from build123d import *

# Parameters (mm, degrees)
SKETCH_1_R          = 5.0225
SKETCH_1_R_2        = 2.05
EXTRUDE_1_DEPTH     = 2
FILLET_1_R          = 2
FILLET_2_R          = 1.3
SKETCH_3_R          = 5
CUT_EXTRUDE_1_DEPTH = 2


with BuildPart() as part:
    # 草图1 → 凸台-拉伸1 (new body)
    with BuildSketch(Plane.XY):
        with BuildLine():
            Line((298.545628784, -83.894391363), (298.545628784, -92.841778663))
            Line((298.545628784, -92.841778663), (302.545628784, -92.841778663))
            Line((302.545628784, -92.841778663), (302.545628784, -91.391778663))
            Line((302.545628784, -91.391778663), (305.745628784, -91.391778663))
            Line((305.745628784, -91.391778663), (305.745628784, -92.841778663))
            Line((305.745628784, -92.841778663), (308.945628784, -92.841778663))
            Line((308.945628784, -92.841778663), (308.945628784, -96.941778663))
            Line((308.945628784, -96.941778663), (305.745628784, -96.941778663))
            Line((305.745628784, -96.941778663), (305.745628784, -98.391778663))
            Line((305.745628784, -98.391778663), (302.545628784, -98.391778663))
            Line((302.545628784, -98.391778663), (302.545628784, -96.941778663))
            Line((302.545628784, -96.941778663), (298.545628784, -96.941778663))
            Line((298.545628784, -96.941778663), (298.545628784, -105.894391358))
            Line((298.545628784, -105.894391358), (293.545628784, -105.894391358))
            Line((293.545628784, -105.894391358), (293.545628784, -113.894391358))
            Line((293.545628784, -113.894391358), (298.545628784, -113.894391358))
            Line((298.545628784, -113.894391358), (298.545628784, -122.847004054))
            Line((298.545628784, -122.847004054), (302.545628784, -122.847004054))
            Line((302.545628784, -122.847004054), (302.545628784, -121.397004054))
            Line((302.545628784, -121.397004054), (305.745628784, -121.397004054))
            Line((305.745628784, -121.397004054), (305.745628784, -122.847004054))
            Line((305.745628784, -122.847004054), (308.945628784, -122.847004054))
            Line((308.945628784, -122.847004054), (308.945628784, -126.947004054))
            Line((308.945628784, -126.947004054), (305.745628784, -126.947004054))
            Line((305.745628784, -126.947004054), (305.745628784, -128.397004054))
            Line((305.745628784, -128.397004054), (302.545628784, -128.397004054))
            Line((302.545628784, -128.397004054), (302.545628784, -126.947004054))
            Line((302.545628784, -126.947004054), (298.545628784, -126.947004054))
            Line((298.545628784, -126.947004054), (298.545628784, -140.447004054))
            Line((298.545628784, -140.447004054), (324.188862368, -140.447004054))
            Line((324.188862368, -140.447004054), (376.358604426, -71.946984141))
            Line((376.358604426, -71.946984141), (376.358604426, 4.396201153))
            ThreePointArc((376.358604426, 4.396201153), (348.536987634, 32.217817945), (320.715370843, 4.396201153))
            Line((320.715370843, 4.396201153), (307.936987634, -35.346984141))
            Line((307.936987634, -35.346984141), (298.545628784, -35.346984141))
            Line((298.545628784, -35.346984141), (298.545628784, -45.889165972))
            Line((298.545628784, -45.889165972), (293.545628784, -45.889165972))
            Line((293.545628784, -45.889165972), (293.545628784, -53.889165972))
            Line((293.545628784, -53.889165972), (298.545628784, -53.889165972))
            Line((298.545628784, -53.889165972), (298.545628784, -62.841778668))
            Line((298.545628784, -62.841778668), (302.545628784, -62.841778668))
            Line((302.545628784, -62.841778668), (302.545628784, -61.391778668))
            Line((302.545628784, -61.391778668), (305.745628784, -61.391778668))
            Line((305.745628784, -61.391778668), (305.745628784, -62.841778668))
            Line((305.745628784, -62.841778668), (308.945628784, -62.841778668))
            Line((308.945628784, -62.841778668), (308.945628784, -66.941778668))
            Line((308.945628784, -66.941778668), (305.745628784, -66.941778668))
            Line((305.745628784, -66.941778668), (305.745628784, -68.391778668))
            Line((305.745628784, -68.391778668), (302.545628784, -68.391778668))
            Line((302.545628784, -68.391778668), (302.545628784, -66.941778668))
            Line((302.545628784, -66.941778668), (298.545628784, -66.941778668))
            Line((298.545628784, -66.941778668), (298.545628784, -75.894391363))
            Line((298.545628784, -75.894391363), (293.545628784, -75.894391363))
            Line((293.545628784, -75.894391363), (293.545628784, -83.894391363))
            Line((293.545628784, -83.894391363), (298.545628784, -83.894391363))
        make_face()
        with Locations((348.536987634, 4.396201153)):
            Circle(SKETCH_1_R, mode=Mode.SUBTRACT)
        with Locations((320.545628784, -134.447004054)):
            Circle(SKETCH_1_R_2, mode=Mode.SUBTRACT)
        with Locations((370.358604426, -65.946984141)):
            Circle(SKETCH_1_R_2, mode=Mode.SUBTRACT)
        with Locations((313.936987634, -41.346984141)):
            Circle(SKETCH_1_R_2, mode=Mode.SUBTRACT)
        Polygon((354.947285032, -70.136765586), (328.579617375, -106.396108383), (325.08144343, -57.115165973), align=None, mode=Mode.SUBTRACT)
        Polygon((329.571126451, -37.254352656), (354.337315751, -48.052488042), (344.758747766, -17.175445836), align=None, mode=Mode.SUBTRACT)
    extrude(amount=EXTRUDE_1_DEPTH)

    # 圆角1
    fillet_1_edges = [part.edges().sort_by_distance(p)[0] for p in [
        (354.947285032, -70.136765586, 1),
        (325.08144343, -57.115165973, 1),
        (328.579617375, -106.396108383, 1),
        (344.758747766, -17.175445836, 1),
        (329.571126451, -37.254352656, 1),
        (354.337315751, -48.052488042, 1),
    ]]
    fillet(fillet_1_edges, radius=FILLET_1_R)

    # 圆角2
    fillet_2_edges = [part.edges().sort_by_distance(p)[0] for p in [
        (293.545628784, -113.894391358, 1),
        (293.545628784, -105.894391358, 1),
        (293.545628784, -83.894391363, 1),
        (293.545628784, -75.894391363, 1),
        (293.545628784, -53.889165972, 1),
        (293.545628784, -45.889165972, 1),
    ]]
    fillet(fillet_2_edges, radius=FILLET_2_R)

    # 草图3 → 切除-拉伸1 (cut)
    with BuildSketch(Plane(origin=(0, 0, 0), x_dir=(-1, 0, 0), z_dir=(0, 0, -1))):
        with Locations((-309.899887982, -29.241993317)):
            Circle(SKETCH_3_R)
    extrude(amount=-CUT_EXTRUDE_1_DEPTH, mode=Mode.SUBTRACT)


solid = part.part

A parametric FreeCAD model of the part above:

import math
import FreeCAD as App
import Part
import Sketcher

V = App.Vector


def edges_at(feature, points):
    """Names of the edges that pass closest to the given points."""
    edges = feature.Shape.Edges
    near = lambda p: min(range(len(edges)), key=lambda i: edges[i].distToShape(Part.Vertex(*p))[0])
    return sorted({f"Edge{near(p) + 1}" for p in points})

doc = App.newDocument("Part")
body = doc.addObject("PartDesign::Body", "Body")

sketch1 = body.newObject("Sketcher::SketchObject", "Sketch")
sketch1.AttachmentSupport = (doc.getObject("XY_Plane"), [""])
sketch1.MapMode = "FlatFace"
sketch1.addGeometry([
    Part.LineSegment(V(298.545629, -83.894391, 0), V(298.545629, -92.841779, 0)),
    Part.LineSegment(V(298.545629, -92.841779, 0), V(302.545629, -92.841779, 0)),
    Part.LineSegment(V(302.545629, -92.841779, 0), V(302.545629, -91.391779, 0)),
    Part.LineSegment(V(302.545629, -91.391779, 0), V(305.745629, -91.391779, 0)),
    Part.LineSegment(V(305.745629, -91.391779, 0), V(305.745629, -92.841779, 0)),
    Part.LineSegment(V(305.745629, -92.841779, 0), V(308.945629, -92.841779, 0)),
    Part.LineSegment(V(308.945629, -92.841779, 0), V(308.945629, -96.941779, 0)),
    Part.LineSegment(V(308.945629, -96.941779, 0), V(305.745629, -96.941779, 0)),
    Part.LineSegment(V(305.745629, -96.941779, 0), V(305.745629, -98.391779, 0)),
    Part.LineSegment(V(305.745629, -98.391779, 0), V(302.545629, -98.391779, 0)),
    Part.LineSegment(V(302.545629, -98.391779, 0), V(302.545629, -96.941779, 0)),
    Part.LineSegment(V(302.545629, -96.941779, 0), V(298.545629, -96.941779, 0)),
    Part.LineSegment(V(298.545629, -96.941779, 0), V(298.545629, -105.894391, 0)),
    Part.LineSegment(V(298.545629, -105.894391, 0), V(293.545629, -105.894391, 0)),
    Part.LineSegment(V(293.545629, -105.894391, 0), V(293.545629, -113.894391, 0)),
    Part.LineSegment(V(293.545629, -113.894391, 0), V(298.545629, -113.894391, 0)),
    Part.LineSegment(V(298.545629, -113.894391, 0), V(298.545629, -122.847004, 0)),
    Part.LineSegment(V(298.545629, -122.847004, 0), V(302.545629, -122.847004, 0)),
    Part.LineSegment(V(302.545629, -122.847004, 0), V(302.545629, -121.397004, 0)),
    Part.LineSegment(V(302.545629, -121.397004, 0), V(305.745629, -121.397004, 0)),
    Part.LineSegment(V(305.745629, -121.397004, 0), V(305.745629, -122.847004, 0)),
    Part.LineSegment(V(305.745629, -122.847004, 0), V(308.945629, -122.847004, 0)),
    Part.LineSegment(V(308.945629, -122.847004, 0), V(308.945629, -126.947004, 0)),
    Part.LineSegment(V(308.945629, -126.947004, 0), V(305.745629, -126.947004, 0)),
    Part.LineSegment(V(305.745629, -126.947004, 0), V(305.745629, -128.397004, 0)),
    Part.LineSegment(V(305.745629, -128.397004, 0), V(302.545629, -128.397004, 0)),
    Part.LineSegment(V(302.545629, -128.397004, 0), V(302.545629, -126.947004, 0)),
    Part.LineSegment(V(302.545629, -126.947004, 0), V(298.545629, -126.947004, 0)),
    Part.LineSegment(V(298.545629, -126.947004, 0), V(298.545629, -140.447004, 0)),
    Part.LineSegment(V(298.545629, -140.447004, 0), V(324.188862, -140.447004, 0)),
    Part.LineSegment(V(324.188862, -140.447004, 0), V(376.358604, -71.946984, 0)),
    Part.LineSegment(V(376.358604, -71.946984, 0), V(376.358604, 4.396201, 0)),
    Part.ArcOfCircle(Part.Circle(V(348.536988, 4.396201, 0), V(0, 0, 1), 27.821617), math.radians(0), math.radians(180)),
    Part.LineSegment(V(320.715371, 4.396201, 0), V(307.936988, -35.346984, 0)),
    Part.LineSegment(V(307.936988, -35.346984, 0), V(298.545629, -35.346984, 0)),
    Part.LineSegment(V(298.545629, -35.346984, 0), V(298.545629, -45.889166, 0)),
    Part.LineSegment(V(298.545629, -45.889166, 0), V(293.545629, -45.889166, 0)),
    Part.LineSegment(V(293.545629, -45.889166, 0), V(293.545629, -53.889166, 0)),
    Part.LineSegment(V(293.545629, -53.889166, 0), V(298.545629, -53.889166, 0)),
    Part.LineSegment(V(298.545629, -53.889166, 0), V(298.545629, -62.841779, 0)),
    Part.LineSegment(V(298.545629, -62.841779, 0), V(302.545629, -62.841779, 0)),
    Part.LineSegment(V(302.545629, -62.841779, 0), V(302.545629, -61.391779, 0)),
    Part.LineSegment(V(302.545629, -61.391779, 0), V(305.745629, -61.391779, 0)),
    Part.LineSegment(V(305.745629, -61.391779, 0), V(305.745629, -62.841779, 0)),
    Part.LineSegment(V(305.745629, -62.841779, 0), V(308.945629, -62.841779, 0)),
    Part.LineSegment(V(308.945629, -62.841779, 0), V(308.945629, -66.941779, 0)),
    Part.LineSegment(V(308.945629, -66.941779, 0), V(305.745629, -66.941779, 0)),
    Part.LineSegment(V(305.745629, -66.941779, 0), V(305.745629, -68.391779, 0)),
    Part.LineSegment(V(305.745629, -68.391779, 0), V(302.545629, -68.391779, 0)),
    Part.LineSegment(V(302.545629, -68.391779, 0), V(302.545629, -66.941779, 0)),
    Part.LineSegment(V(302.545629, -66.941779, 0), V(298.545629, -66.941779, 0)),
    Part.LineSegment(V(298.545629, -66.941779, 0), V(298.545629, -75.894391, 0)),
    Part.LineSegment(V(298.545629, -75.894391, 0), V(293.545629, -75.894391, 0)),
    Part.LineSegment(V(293.545629, -75.894391, 0), V(293.545629, -83.894391, 0)),
    Part.LineSegment(V(293.545629, -83.894391, 0), V(298.545629, -83.894391, 0)),
    Part.Circle(V(320.545629, -134.447004, 0), V(0, 0, 1), 2.05),
    Part.LineSegment(V(325.081443, -57.115166, 0), V(354.947285, -70.136766, 0)),
    Part.LineSegment(V(354.947285, -70.136766, 0), V(328.579617, -106.396108, 0)),
    Part.LineSegment(V(328.579617, -106.396108, 0), V(325.081443, -57.115166, 0)),
    Part.Circle(V(370.358604, -65.946984, 0), V(0, 0, 1), 2.05),
    Part.Circle(V(313.936988, -41.346984, 0), V(0, 0, 1), 2.05),
    Part.LineSegment(V(354.337316, -48.052488, 0), V(329.571126, -37.254353, 0)),
    Part.LineSegment(V(329.571126, -37.254353, 0), V(344.758748, -17.175446, 0)),
    Part.LineSegment(V(344.758748, -17.175446, 0), V(354.337316, -48.052488, 0)),
    Part.Circle(V(348.536988, 4.396201, 0), V(0, 0, 1), 5.0225),
], False)
sketch1.addConstraint([
    Sketcher.Constraint("Coincident", 0, 2, 1, 1),
    Sketcher.Constraint("Coincident", 1, 2, 2, 1),
    Sketcher.Constraint("Coincident", 2, 2, 3, 1),
    Sketcher.Constraint("Coincident", 3, 2, 4, 1),
    Sketcher.Constraint("Coincident", 4, 2, 5, 1),
    Sketcher.Constraint("Coincident", 5, 2, 6, 1),
    Sketcher.Constraint("Coincident", 6, 2, 7, 1),
    Sketcher.Constraint("Coincident", 7, 2, 8, 1),
    Sketcher.Constraint("Coincident", 8, 2, 9, 1),
    Sketcher.Constraint("Coincident", 9, 2, 10, 1),
    Sketcher.Constraint("Coincident", 10, 2, 11, 1),
    Sketcher.Constraint("Coincident", 11, 2, 12, 1),
    Sketcher.Constraint("Coincident", 12, 2, 13, 1),
    Sketcher.Constraint("Coincident", 13, 2, 14, 1),
    Sketcher.Constraint("Coincident", 14, 2, 15, 1),
    Sketcher.Constraint("Coincident", 15, 2, 16, 1),
    Sketcher.Constraint("Coincident", 16, 2, 17, 1),
    Sketcher.Constraint("Coincident", 17, 2, 18, 1),
    Sketcher.Constraint("Coincident", 18, 2, 19, 1),
    Sketcher.Constraint("Coincident", 19, 2, 20, 1),
    Sketcher.Constraint("Coincident", 20, 2, 21, 1),
    Sketcher.Constraint("Coincident", 21, 2, 22, 1),
    Sketcher.Constraint("Coincident", 22, 2, 23, 1),
    Sketcher.Constraint("Coincident", 23, 2, 24, 1),
    Sketcher.Constraint("Coincident", 24, 2, 25, 1),
    Sketcher.Constraint("Coincident", 25, 2, 26, 1),
    Sketcher.Constraint("Coincident", 26, 2, 27, 1),
    Sketcher.Constraint("Coincident", 27, 2, 28, 1),
    Sketcher.Constraint("Coincident", 28, 2, 29, 1),
    Sketcher.Constraint("Coincident", 29, 2, 30, 1),
    Sketcher.Constraint("Coincident", 30, 2, 31, 1),
    Sketcher.Constraint("Tangent", 31, 2, 32, 1),
    Sketcher.Constraint("Coincident", 32, 2, 33, 1),
    Sketcher.Constraint("Coincident", 33, 2, 34, 1),
    Sketcher.Constraint("Coincident", 34, 2, 35, 1),
    Sketcher.Constraint("Coincident", 35, 2, 36, 1),
    Sketcher.Constraint("Coincident", 36, 2, 37, 1),
    Sketcher.Constraint("Coincident", 37, 2, 38, 1),
    Sketcher.Constraint("Coincident", 38, 2, 39, 1),
    Sketcher.Constraint("Coincident", 39, 2, 40, 1),
    Sketcher.Constraint("Coincident", 40, 2, 41, 1),
    Sketcher.Constraint("Coincident", 41, 2, 42, 1),
    Sketcher.Constraint("Coincident", 42, 2, 43, 1),
    Sketcher.Constraint("Coincident", 43, 2, 44, 1),
    Sketcher.Constraint("Coincident", 44, 2, 45, 1),
    Sketcher.Constraint("Coincident", 45, 2, 46, 1),
    Sketcher.Constraint("Coincident", 46, 2, 47, 1),
    Sketcher.Constraint("Coincident", 47, 2, 48, 1),
    Sketcher.Constraint("Coincident", 48, 2, 49, 1),
    Sketcher.Constraint("Coincident", 49, 2, 50, 1),
    Sketcher.Constraint("Coincident", 50, 2, 51, 1),
    Sketcher.Constraint("Coincident", 51, 2, 52, 1),
    Sketcher.Constraint("Coincident", 52, 2, 53, 1),
    Sketcher.Constraint("Coincident", 53, 2, 54, 1),
    Sketcher.Constraint("Coincident", 54, 2, 0, 1),
    Sketcher.Constraint("Coincident", 56, 2, 57, 1),
    Sketcher.Constraint("Coincident", 57, 2, 58, 1),
    Sketcher.Constraint("Coincident", 58, 2, 56, 1),
    Sketcher.Constraint("Coincident", 61, 2, 62, 1),
    Sketcher.Constraint("Coincident", 62, 2, 63, 1),
    Sketcher.Constraint("Coincident", 63, 2, 61, 1),
    Sketcher.Constraint("Vertical", 0),
    Sketcher.Constraint("Horizontal", 1),
    Sketcher.Constraint("Vertical", 2),
    Sketcher.Constraint("Horizontal", 3),
    Sketcher.Constraint("Vertical", 4),
    Sketcher.Constraint("Horizontal", 5),
    Sketcher.Constraint("Vertical", 6),
    Sketcher.Constraint("Horizontal", 7),
    Sketcher.Constraint("Vertical", 8),
    Sketcher.Constraint("Horizontal", 9),
    Sketcher.Constraint("Vertical", 10),
    Sketcher.Constraint("Horizontal", 11),
    Sketcher.Constraint("Vertical", 12),
    Sketcher.Constraint("Horizontal", 13),
    Sketcher.Constraint("Vertical", 14),
    Sketcher.Constraint("Horizontal", 15),
    Sketcher.Constraint("Vertical", 16),
    Sketcher.Constraint("Horizontal", 17),
    Sketcher.Constraint("Vertical", 18),
    Sketcher.Constraint("Horizontal", 19),
    Sketcher.Constraint("Vertical", 20),
    Sketcher.Constraint("Horizontal", 21),
    Sketcher.Constraint("Vertical", 22),
    Sketcher.Constraint("Horizontal", 23),
    Sketcher.Constraint("Vertical", 24),
    Sketcher.Constraint("Horizontal", 25),
    Sketcher.Constraint("Vertical", 26),
    Sketcher.Constraint("Horizontal", 27),
    Sketcher.Constraint("Vertical", 28),
    Sketcher.Constraint("Horizontal", 29),
    Sketcher.Constraint("Vertical", 31),
    Sketcher.Constraint("Horizontal", 34),
    Sketcher.Constraint("Vertical", 35),
    Sketcher.Constraint("Horizontal", 36),
    Sketcher.Constraint("Vertical", 37),
    Sketcher.Constraint("Horizontal", 38),
    Sketcher.Constraint("Vertical", 39),
    Sketcher.Constraint("Horizontal", 40),
    Sketcher.Constraint("Vertical", 41),
    Sketcher.Constraint("Horizontal", 42),
    Sketcher.Constraint("Vertical", 43),
    Sketcher.Constraint("Horizontal", 44),
    Sketcher.Constraint("Vertical", 45),
    Sketcher.Constraint("Horizontal", 46),
    Sketcher.Constraint("Vertical", 47),
    Sketcher.Constraint("Horizontal", 48),
    Sketcher.Constraint("Vertical", 49),
    Sketcher.Constraint("Horizontal", 50),
    Sketcher.Constraint("Vertical", 51),
    Sketcher.Constraint("Horizontal", 52),
    Sketcher.Constraint("Vertical", 53),
    Sketcher.Constraint("Horizontal", 54),
    Sketcher.Constraint("Coincident", 64, 3, 32, 3),
    Sketcher.Constraint("Equal", 55, 59),
    Sketcher.Constraint("Equal", 59, 60),
    Sketcher.Constraint("Parallel", 56, 61),
    Sketcher.Constraint("Horizontal", 1, 2, 4, 2),
    Sketcher.Constraint("Horizontal", 7, 2, 10, 2),
    Sketcher.Constraint("Horizontal", 17, 2, 20, 2),
    Sketcher.Constraint("Horizontal", 23, 2, 26, 2),
    Sketcher.Constraint("Horizontal", 31, 2, 32, 2),
    Sketcher.Constraint("Horizontal", 40, 2, 43, 2),
    Sketcher.Constraint("Horizontal", 46, 2, 49, 2),
    Sketcher.Constraint("Vertical", 4, 2, 7, 2),
    Sketcher.Constraint("Vertical", 2, 2, 9, 2),
    Sketcher.Constraint("Vertical", 0, 2, 11, 2),
    Sketcher.Constraint("Vertical", 12, 2, 15, 2),
    Sketcher.Constraint("Vertical", 10, 2, 17, 2),
    Sketcher.Constraint("Vertical", 8, 2, 19, 2),
    Sketcher.Constraint("Vertical", 6, 2, 21, 2),
    Sketcher.Constraint("Vertical", 20, 2, 23, 2),
    Sketcher.Constraint("Vertical", 18, 2, 25, 2),
    Sketcher.Constraint("Vertical", 16, 2, 27, 2),
    Sketcher.Constraint("Vertical", 28, 2, 34, 2),
    Sketcher.Constraint("Vertical", 14, 2, 36, 2),
    Sketcher.Constraint("Vertical", 35, 2, 38, 2),
    Sketcher.Constraint("Vertical", 26, 2, 40, 2),
    Sketcher.Constraint("Vertical", 24, 2, 42, 2),
    Sketcher.Constraint("Vertical", 22, 2, 44, 2),
    Sketcher.Constraint("Vertical", 43, 2, 46, 2),
    Sketcher.Constraint("Vertical", 41, 2, 48, 2),
    Sketcher.Constraint("Vertical", 39, 2, 50, 2),
    Sketcher.Constraint("Vertical", 37, 2, 52, 2),
    Sketcher.Constraint("Equal", 3, 5),
    Sketcher.Constraint("Equal", 4, 8),
    Sketcher.Constraint("Equal", 12, 16),
    Sketcher.Constraint("Equal", 10, 18),
    Sketcher.Constraint("Equal", 6, 22),
    Sketcher.Constraint("Equal", 20, 24),
    Sketcher.Constraint("Equal", 14, 37),
    Sketcher.Constraint("Equal", 16, 39),
    Sketcher.Constraint("Equal", 26, 41),
    Sketcher.Constraint("Equal", 22, 45),
    Sketcher.Constraint("Equal", 43, 47),
    Sketcher.Constraint("Equal", 39, 51),
    Sketcher.Constraint("Equal", 37, 53),
    Sketcher.Constraint("Diameter", 55, 4.1),
    Sketcher.Constraint("DistanceX", 1, 1, 1, 2, 4.0),
    Sketcher.Constraint("DistanceX", 13, 2, 13, 1, 5.0),
    Sketcher.Constraint("DistanceY", 14, 2, 14, 1, 8.0),
    Sketcher.Constraint("Diameter", 64, 10.045),
    Sketcher.Constraint("DistanceX", 3, 1, 3, 2, 3.2),
    Sketcher.Constraint("DistanceY", 6, 2, 6, 1, 4.1),
    Sketcher.Constraint("DistanceY", 28, 2, 28, 1, 13.5),
    Sketcher.Constraint("DistanceY", 2, 1, 2, 2, 1.45),
    Sketcher.Constraint("Radius", 32, 27.821617),
    Sketcher.Constraint("DistanceX", 34, 2, 34, 1, 9.391359),
    Sketcher.Constraint("DistanceY", 35, 2, 35, 1, 10.542182),
    Sketcher.Constraint("DistanceY", -1, 1, 32, 3, 4.396201),
    Sketcher.Constraint("Distance", 30, 86.104208),
    Sketcher.Constraint("Distance", 33, 41.74695),
    Sketcher.Constraint("DistanceX", 29, 1, 29, 2, 25.643234),
    Sketcher.Constraint("DistanceY", 0, 2, 0, 1, 8.947387),
    Sketcher.Constraint("DistanceY", 12, 2, 12, 1, 8.952613),
    Sketcher.Constraint("DistanceY", 31, 1, 31, 2, 76.343185),
    Sketcher.Constraint("DistanceX", -1, 1, 55, 3, 320.545629),
    Sketcher.Constraint("DistanceX", -1, 1, 0, 2, 298.545629),
    Sketcher.Constraint("DistanceY", 57, 2, -1, 1, 106.396108),
    Sketcher.Constraint("DistanceY", 63, 2, -1, 1, 48.052488),
    Sketcher.Constraint("Distance", 56, 32.581138),
    Sketcher.Constraint("Distance", 57, 44.832955),
    Sketcher.Constraint("Distance", 58, 49.404944),
    Sketcher.Constraint("Distance", 61, 27.017843),
    Sketcher.Constraint("Distance", 62, 25.175908),
    Sketcher.Constraint("Distance", 63, 32.328636),
    Sketcher.Constraint("DistanceY", 55, 3, -1, 1, 134.447004),
    Sketcher.Constraint("DistanceX", -1, 1, 59, 3, 370.358604),
    Sketcher.Constraint("DistanceY", 59, 3, -1, 1, 65.946984),
    Sketcher.Constraint("DistanceX", -1, 1, 60, 3, 313.936988),
    Sketcher.Constraint("DistanceY", 60, 3, -1, 1, 41.346984),
    Sketcher.Constraint("DistanceX", -1, 1, 56, 2, 354.947285),
    Sketcher.Constraint("DistanceY", 56, 2, -1, 1, 70.136766),
    Sketcher.Constraint("DistanceX", -1, 1, 61, 2, 329.571126),
])
pad1 = body.newObject("PartDesign::Pad", "Pad")
pad1.Profile = sketch1
pad1.Length = 2
doc.recompute()

fillet = body.newObject("PartDesign::Fillet", "Fillet")
fillet.Base = (pad1, edges_at(pad1, [
    (354.947, -70.137, 1),
    (325.081, -57.115, 1),
    (328.58, -106.396, 1),
    (344.759, -17.175, 1),
    (329.571, -37.254, 1),
    (354.337, -48.052, 1),
]))
fillet.Radius = 2
doc.recompute()

fillet2 = body.newObject("PartDesign::Fillet", "Fillet001")
fillet2.Base = (fillet, edges_at(fillet, [
    (293.546, -113.894, 1),
    (293.546, -105.894, 1),
    (293.546, -83.894, 1),
    (293.546, -75.894, 1),
    (293.546, -53.889, 1),
    (293.546, -45.889, 1),
]))
fillet2.Radius = 1.3

sketch2 = body.newObject("Sketcher::SketchObject", "Sketch001")
sketch2.AttachmentSupport = (doc.getObject("XY_Plane"), [""])
sketch2.MapMode = "FlatFace"
sketch2.addGeometry(Part.Circle(V(309.899888, -29.241993, 0), V(0, 0, 1), 5), False)
sketch2.addConstraint([
    Sketcher.Constraint("Diameter", 0, 10.0),
    Sketcher.Constraint("DistanceX", -1, 1, 0, 3, 309.899888),
    Sketcher.Constraint("DistanceY", 0, 3, -1, 1, 29.241993),
])
pocket1 = body.newObject("PartDesign::Pocket", "Pocket")
pocket1.Profile = sketch2
pocket1.Length = 2
pocket1.Reversed = True

doc.recompute()
